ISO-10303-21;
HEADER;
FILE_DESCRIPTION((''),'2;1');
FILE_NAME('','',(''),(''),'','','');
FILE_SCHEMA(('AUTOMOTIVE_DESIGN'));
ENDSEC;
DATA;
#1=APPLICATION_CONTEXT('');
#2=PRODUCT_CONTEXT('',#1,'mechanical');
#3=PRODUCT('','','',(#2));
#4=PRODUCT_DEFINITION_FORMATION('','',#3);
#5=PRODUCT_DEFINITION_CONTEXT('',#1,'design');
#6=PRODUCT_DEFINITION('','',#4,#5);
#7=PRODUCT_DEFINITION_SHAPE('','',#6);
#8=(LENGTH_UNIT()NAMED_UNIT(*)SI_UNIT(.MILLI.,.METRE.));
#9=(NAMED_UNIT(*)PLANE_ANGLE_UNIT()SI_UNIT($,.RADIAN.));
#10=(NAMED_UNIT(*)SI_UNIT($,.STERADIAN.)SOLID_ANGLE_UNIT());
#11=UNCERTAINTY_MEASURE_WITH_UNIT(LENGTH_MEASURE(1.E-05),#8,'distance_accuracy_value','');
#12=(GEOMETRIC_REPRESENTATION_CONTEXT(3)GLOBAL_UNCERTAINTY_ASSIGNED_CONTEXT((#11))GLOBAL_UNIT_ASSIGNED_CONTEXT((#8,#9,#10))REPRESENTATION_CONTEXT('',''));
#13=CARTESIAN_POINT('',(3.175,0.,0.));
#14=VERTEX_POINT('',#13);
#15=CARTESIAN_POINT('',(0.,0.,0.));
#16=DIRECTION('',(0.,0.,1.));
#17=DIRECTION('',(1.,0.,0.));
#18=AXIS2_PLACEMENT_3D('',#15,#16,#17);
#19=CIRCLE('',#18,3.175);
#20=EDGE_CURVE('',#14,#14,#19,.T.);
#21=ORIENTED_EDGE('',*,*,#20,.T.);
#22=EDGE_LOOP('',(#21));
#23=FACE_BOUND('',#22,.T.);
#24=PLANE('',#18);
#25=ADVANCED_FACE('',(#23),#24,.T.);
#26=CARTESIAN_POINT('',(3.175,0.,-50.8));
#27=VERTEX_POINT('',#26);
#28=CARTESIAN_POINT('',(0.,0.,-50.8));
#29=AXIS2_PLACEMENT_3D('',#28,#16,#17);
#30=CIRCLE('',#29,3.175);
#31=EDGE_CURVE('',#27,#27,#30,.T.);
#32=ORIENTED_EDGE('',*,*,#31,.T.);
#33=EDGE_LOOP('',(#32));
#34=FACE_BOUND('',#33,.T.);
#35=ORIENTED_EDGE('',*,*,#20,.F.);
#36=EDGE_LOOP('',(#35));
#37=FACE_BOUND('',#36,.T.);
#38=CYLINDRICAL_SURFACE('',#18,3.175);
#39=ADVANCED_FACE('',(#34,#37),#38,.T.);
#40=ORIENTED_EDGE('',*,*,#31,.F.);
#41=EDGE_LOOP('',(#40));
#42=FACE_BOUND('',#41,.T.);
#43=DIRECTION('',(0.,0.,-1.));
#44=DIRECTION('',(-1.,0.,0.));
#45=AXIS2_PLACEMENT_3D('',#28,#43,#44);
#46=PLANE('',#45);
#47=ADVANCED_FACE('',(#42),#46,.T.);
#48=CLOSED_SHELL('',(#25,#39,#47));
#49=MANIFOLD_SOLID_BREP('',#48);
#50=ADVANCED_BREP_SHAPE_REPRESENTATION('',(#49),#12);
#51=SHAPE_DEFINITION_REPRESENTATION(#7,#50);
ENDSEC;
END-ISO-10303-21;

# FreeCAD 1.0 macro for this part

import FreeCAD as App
import Part
import Sketcher

V = App.Vector
Q = App.Units.Quantity


def add_polygon(sketch, points):
    """Adds a closed chain of lines whose ends are joined by coincident constraints."""
    first, n = sketch.GeometryCount, len(points)
    for a, b in zip(points, points[1:] + points[:1]):
        sketch.addGeometry(Part.LineSegment(App.Vector(*a, 0), App.Vector(*b, 0)), False)
    for i in range(n):
        sketch.addConstraint(Sketcher.Constraint("Coincident", first + i, 2, first + (i + 1) % n, 1))

doc = App.newDocument("Part")
body = doc.addObject("PartDesign::Body", "Body")

sketch1 = body.newObject("Sketcher::SketchObject", "Sketch")
sketch1.AttachmentSupport = (doc.getObject("XZ_Plane"), [""])
sketch1.MapMode = "FlatFace"
add_polygon(sketch1, [(0, -50.8), (0, 0), (3.2, 0), (3.2, -50.8)])
sketch1.addConstraint(Sketcher.Constraint("Vertical", 0))
sketch1.addConstraint(Sketcher.Constraint("Horizontal", 1))
sketch1.addConstraint(Sketcher.Constraint("Vertical", 2))
sketch1.addConstraint(Sketcher.Constraint("Horizontal", 3))
sketch1.addConstraint(Sketcher.Constraint("Coincident", 0, 2, -1, 1))
sketch1.addConstraint(Sketcher.Constraint("DistanceY", 0, 1, 0, 2, Q("2 in")))
sketch1.addConstraint(Sketcher.Constraint("DistanceX", 1, 1, 1, 2, Q("0.125 in")))
revolution = body.newObject("PartDesign::Revolution", "Revolution")
revolution.Profile = sketch1
revolution.ReferenceAxis = (sketch1, ["V_Axis"])
revolution.Angle = 360

doc.recompute()
